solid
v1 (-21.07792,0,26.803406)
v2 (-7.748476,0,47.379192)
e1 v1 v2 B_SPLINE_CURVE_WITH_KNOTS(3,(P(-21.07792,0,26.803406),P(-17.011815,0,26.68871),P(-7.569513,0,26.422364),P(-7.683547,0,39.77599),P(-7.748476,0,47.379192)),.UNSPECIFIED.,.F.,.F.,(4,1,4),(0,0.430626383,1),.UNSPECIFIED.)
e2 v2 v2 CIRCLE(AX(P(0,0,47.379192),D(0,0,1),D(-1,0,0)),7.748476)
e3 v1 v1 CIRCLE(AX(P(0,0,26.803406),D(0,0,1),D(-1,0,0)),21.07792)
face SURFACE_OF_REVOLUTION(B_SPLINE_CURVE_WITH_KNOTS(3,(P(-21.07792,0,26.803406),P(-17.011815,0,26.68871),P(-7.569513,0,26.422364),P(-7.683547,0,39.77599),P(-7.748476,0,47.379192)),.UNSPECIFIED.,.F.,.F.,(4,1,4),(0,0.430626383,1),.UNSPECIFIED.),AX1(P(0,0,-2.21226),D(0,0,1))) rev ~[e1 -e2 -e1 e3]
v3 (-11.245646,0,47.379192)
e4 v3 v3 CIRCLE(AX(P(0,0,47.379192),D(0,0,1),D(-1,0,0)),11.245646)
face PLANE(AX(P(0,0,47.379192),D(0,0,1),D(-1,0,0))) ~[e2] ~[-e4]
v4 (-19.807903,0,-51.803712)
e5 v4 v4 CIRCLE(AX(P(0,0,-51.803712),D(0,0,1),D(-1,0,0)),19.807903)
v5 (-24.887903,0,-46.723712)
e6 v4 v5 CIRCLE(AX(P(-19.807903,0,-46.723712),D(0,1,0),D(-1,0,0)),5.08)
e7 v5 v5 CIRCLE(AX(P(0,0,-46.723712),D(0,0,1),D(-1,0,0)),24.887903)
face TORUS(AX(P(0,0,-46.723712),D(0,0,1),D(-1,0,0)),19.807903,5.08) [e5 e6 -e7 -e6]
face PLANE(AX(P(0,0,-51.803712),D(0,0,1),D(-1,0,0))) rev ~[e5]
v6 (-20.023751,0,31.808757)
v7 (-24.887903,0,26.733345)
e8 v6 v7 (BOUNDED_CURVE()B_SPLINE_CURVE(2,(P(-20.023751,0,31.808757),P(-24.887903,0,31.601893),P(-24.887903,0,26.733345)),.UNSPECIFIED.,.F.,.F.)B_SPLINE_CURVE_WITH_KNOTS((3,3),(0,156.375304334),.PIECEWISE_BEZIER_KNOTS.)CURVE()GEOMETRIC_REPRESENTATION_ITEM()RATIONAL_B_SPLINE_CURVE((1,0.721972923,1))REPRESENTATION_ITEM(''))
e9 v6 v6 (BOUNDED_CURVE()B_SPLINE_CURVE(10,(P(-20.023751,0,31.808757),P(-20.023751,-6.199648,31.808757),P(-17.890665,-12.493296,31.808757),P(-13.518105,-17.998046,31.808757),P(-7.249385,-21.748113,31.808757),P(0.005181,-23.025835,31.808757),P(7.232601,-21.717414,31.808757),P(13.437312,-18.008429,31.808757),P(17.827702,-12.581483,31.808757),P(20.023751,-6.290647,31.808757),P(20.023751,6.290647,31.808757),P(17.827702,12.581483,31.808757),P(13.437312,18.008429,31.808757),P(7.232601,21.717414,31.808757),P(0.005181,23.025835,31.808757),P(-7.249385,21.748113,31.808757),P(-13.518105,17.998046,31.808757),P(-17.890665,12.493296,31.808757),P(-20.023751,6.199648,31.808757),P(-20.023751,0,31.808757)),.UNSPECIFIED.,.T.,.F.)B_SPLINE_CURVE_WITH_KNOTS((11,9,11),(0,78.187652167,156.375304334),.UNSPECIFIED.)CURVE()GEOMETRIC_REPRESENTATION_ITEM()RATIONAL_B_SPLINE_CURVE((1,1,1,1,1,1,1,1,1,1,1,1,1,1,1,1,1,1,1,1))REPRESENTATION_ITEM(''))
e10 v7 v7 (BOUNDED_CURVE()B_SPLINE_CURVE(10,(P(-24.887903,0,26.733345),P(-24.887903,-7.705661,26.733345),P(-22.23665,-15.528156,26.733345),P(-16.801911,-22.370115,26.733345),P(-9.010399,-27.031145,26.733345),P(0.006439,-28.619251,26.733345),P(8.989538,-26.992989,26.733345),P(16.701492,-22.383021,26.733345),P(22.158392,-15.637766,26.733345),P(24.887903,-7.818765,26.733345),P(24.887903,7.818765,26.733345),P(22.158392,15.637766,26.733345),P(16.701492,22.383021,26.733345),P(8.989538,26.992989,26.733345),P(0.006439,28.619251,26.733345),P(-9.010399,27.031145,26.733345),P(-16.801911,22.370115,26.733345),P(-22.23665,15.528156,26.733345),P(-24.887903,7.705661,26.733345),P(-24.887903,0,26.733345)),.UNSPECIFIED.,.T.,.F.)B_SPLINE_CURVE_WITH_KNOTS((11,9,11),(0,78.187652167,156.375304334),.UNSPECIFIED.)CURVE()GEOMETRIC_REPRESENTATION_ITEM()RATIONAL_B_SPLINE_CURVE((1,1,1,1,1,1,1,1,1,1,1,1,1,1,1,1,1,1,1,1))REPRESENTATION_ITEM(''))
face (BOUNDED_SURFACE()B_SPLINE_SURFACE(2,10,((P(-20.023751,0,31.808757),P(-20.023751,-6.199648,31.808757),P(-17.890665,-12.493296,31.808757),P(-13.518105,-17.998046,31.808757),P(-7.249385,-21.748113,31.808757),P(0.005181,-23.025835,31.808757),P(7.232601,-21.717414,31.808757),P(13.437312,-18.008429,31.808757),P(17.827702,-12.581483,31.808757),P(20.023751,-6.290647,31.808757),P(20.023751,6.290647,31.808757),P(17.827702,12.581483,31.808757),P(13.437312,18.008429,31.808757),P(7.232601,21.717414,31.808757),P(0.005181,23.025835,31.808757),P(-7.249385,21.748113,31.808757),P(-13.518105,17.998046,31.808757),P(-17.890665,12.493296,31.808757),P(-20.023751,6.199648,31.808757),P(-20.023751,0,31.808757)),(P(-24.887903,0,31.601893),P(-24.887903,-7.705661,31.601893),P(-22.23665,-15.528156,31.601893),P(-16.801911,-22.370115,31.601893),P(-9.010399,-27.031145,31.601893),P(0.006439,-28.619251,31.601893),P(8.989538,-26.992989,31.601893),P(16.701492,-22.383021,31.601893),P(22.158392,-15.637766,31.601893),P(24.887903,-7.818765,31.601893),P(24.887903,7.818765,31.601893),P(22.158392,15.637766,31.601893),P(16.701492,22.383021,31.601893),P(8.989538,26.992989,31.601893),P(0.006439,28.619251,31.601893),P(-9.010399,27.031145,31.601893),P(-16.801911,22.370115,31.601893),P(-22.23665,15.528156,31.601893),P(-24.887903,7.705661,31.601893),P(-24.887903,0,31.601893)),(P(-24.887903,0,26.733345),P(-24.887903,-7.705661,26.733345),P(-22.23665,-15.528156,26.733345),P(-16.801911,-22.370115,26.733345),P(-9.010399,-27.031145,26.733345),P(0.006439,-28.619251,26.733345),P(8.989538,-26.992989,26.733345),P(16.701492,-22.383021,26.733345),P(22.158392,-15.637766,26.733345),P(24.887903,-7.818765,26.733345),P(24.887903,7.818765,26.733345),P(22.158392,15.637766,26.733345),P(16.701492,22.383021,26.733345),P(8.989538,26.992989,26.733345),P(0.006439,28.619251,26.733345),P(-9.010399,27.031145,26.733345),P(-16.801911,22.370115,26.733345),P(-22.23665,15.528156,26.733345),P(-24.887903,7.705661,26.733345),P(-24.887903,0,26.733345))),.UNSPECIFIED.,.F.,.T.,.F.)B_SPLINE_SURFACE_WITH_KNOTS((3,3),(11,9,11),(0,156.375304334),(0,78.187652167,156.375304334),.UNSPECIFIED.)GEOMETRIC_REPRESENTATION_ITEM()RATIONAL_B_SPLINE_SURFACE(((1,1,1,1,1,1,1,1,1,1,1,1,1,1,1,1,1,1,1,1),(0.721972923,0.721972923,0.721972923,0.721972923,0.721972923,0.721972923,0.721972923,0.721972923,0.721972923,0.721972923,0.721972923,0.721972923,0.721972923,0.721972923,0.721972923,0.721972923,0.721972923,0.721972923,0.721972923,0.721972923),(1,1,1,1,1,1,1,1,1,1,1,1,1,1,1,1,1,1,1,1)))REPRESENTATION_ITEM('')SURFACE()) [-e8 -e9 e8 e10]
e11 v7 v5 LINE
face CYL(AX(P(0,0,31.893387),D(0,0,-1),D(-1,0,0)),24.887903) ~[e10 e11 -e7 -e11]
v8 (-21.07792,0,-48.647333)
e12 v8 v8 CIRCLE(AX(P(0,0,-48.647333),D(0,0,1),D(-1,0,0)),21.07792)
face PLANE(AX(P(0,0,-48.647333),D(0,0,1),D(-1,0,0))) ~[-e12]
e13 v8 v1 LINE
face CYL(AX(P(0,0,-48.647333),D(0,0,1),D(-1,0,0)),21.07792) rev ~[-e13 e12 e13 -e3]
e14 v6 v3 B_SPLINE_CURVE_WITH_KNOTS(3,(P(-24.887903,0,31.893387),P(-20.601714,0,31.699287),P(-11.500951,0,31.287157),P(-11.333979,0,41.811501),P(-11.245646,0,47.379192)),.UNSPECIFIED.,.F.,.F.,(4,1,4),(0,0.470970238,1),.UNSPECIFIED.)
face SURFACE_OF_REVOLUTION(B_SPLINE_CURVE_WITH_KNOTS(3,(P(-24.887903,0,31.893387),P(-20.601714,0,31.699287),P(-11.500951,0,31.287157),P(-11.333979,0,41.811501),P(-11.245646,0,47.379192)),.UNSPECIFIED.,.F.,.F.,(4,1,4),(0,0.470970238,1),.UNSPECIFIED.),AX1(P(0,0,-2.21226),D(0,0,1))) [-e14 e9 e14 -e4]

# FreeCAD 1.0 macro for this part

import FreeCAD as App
import Part
import Sketcher
from FreeCAD import Vector
Q = App.Units.Quantity


def edges_at(feature, points):
    """Names of the edges that pass closest to the given points."""
    edges = feature.Shape.Edges
    near = lambda p: min(range(len(edges)), key=lambda i: edges[i].distToShape(Part.Vertex(*p))[0])
    return sorted({f"Edge{near(p) + 1}" for p in points})

doc = App.newDocument("Part")
body = doc.addObject("PartDesign::Body", "Body")

sketch1 = body.newObject("Sketcher::SketchObject", "Sketch")
sketch1.AttachmentSupport = (doc.getObject("XZ_Plane"), [""])
sketch1.MapMode = "FlatFace"
sketch1.addGeometry([
    Part.BSplineCurve([Vector(-24.887903, 31.893387, 0), Vector(-20.601714, 31.699287, 0), Vector(-11.500951, 31.287157, 0), Vector(-11.333979, 41.811501, 0), Vector(-11.245646, 47.379192, 0)], [4, 1, 4], [0, 0.470970238, 1], False, 3, [1, 1, 1, 1, 1], False),
    Part.LineSegment(Vector(-24.887903, 31.893387, 0), Vector(-24.887903, -51.803712, 0)),
    Part.LineSegment(Vector(-24.887903, -51.803712, 0), Vector(0, -51.803712, 0)),
    Part.LineSegment(Vector(0, -51.803712, 0), Vector(0, -48.647333, 0)),
    Part.LineSegment(Vector(0, -48.647333, 0), Vector(-21.07792, -48.647333, 0)),
    Part.LineSegment(Vector(-21.07792, -48.647333, 0), Vector(-21.07792, 26.803406, 0)),
    Part.BSplineCurve([Vector(-21.07792, 26.803406, 0), Vector(-17.011815, 26.68871, 0), Vector(-7.569513, 26.422364, 0), Vector(-7.683547, 39.77599, 0), Vector(-7.748476, 47.379192, 0)], [4, 1, 4], [0, 0.430626383, 1], False, 3, [1, 1, 1, 1, 1], False),
    Part.LineSegment(Vector(-7.748476, 47.379192, 0), Vector(-11.245646, 47.379192, 0)),
], False)
sketch1.addConstraint([
    Sketcher.Constraint("Block", 0),
    Sketcher.Constraint("Block", 6),
    Sketcher.Constraint("Coincident", 0, 1, 1, 1),
    Sketcher.Constraint("Coincident", 1, 2, 2, 1),
    Sketcher.Constraint("Coincident", 2, 2, 3, 1),
    Sketcher.Constraint("Coincident", 3, 2, 4, 1),
    Sketcher.Constraint("Coincident", 4, 2, 5, 1),
    Sketcher.Constraint("Coincident", 5, 2, 6, 1),
    Sketcher.Constraint("Coincident", 6, 2, 7, 1),
    Sketcher.Constraint("Coincident", 7, 2, 0, 2),
    Sketcher.Constraint("Vertical", 1),
    Sketcher.Constraint("Horizontal", 2),
    Sketcher.Constraint("Vertical", 3),
    Sketcher.Constraint("Horizontal", 4),
    Sketcher.Constraint("Vertical", 5),
    Sketcher.Constraint("PointOnObject", 2, 2, -2),
    Sketcher.Constraint("DistanceY", 1, 2, 1, 1, Q("83.697099 mm")),
    Sketcher.Constraint("DistanceY", 3, 1, 3, 2, Q("3.156379 mm")),
])
revolution = body.newObject("PartDesign::Revolution", "Revolution")
revolution.Profile = sketch1
revolution.ReferenceAxis = (sketch1, ["V_Axis"])
revolution.Angle = 360
doc.recompute()

fillet = body.newObject("PartDesign::Fillet", "Fillet")
fillet.Base = (revolution, edges_at(revolution, [(24.888, 0, 31.893), (24.888, 0, -51.804)]))
fillet.Radius = Q("0.2 in")

doc.recompute()
